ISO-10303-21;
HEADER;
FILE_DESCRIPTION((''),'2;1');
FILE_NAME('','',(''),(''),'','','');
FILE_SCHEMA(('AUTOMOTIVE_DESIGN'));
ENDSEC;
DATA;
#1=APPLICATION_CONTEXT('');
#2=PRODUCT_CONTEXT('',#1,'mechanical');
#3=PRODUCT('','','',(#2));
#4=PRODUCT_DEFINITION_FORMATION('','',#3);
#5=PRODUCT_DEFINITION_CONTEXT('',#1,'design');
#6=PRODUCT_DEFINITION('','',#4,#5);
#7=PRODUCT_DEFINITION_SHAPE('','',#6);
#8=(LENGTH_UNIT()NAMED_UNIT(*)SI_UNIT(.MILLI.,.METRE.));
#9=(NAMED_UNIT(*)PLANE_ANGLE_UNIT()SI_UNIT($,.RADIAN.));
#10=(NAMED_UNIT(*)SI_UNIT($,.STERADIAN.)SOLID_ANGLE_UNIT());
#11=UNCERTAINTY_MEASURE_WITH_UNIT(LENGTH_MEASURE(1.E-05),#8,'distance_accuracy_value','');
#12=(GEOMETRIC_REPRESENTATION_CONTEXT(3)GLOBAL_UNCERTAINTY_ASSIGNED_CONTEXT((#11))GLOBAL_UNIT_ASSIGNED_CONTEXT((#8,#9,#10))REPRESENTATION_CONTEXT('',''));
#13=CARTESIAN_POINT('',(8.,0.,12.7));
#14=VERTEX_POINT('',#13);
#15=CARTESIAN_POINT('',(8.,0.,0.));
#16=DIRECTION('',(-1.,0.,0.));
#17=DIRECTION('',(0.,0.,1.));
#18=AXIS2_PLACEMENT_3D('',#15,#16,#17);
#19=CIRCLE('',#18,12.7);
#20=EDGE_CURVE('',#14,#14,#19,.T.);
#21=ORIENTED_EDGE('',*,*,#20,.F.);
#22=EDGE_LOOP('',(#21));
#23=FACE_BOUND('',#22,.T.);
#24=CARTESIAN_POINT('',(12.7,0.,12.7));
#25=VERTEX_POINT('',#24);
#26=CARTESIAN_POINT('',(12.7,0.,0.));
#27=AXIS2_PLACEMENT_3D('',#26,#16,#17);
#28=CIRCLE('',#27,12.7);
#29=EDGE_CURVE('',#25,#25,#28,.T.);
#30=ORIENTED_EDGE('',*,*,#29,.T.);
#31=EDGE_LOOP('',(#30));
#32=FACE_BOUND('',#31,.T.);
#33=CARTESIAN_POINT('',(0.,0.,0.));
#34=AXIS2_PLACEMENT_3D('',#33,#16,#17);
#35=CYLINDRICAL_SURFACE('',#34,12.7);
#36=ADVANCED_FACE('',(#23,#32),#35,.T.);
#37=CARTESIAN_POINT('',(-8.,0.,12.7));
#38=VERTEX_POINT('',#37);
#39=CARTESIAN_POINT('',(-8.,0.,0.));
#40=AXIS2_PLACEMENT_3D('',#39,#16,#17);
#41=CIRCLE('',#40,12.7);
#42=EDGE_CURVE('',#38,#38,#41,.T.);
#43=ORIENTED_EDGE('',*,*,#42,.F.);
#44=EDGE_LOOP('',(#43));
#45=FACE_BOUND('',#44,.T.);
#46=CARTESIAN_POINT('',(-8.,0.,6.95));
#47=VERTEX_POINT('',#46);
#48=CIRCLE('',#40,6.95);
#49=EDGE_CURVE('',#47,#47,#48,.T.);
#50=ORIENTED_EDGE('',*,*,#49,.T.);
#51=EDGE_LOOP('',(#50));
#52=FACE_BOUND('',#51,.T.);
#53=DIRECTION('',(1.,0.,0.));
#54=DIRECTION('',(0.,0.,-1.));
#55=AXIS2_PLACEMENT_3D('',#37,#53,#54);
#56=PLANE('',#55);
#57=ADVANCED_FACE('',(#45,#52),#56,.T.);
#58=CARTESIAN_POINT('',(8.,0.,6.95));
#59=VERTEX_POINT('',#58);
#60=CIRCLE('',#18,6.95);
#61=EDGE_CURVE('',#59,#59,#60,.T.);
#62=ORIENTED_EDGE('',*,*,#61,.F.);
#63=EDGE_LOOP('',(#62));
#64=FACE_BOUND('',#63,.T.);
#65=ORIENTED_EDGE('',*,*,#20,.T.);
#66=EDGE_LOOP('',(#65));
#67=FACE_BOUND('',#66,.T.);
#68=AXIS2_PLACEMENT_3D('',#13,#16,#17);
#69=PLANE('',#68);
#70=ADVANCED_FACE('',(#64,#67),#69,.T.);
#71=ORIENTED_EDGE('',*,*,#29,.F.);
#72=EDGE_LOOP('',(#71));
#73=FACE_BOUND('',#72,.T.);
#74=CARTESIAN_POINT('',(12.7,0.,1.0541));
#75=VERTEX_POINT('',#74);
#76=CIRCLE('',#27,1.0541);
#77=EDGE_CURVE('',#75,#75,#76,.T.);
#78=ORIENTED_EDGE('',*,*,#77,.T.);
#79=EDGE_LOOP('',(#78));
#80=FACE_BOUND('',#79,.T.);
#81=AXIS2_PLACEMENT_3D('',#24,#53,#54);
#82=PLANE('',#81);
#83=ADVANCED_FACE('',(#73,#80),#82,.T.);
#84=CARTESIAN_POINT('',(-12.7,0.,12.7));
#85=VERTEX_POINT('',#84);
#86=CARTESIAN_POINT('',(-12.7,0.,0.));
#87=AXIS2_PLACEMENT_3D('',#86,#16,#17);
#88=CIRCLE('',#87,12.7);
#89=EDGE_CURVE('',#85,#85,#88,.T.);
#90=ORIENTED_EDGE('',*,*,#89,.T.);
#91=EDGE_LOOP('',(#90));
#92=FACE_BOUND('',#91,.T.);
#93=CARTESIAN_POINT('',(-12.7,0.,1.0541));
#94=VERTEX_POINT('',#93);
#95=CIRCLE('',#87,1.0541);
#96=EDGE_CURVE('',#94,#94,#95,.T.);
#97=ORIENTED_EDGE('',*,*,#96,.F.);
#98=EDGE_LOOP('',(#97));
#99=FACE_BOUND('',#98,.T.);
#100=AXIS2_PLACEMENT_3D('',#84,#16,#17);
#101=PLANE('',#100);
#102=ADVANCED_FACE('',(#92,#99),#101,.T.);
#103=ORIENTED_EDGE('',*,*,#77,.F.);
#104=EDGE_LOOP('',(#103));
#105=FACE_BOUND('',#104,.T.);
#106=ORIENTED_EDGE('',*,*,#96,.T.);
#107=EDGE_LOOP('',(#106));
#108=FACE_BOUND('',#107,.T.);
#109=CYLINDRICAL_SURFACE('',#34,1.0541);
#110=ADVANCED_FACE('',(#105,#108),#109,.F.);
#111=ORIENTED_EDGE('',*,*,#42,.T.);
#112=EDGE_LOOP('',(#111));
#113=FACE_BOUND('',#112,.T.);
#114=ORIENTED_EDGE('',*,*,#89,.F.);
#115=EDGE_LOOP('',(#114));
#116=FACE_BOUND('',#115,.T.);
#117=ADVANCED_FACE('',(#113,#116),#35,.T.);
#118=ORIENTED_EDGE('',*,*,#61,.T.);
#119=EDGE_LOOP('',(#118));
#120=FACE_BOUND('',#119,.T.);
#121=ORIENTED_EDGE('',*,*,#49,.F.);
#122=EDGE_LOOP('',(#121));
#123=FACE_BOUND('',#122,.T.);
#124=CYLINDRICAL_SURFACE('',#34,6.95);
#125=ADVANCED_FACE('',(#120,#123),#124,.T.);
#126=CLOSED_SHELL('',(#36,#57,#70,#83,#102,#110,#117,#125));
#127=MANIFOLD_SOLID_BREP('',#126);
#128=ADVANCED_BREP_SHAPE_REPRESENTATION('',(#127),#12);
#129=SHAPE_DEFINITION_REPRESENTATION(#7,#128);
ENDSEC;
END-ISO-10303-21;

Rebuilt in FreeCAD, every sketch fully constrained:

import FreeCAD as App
import Part
import Sketcher
Q = App.Units.Quantity

doc = App.newDocument("Part")
body = doc.addObject("PartDesign::Body", "Body")

# Sketch on XZ plane
sketch1 = body.newObject("Sketcher::SketchObject", "Sketch")
sketch1.AttachmentSupport = (doc.getObject("XZ_Plane"), [""])
sketch1.MapMode = "FlatFace"
sketch1.addGeometry([
    Part.LineSegment(App.Vector(8, 12.7, 0), App.Vector(12.7, 12.7, 0)),  # 0
    Part.LineSegment(App.Vector(12.7, 12.7, 0), App.Vector(12.7, 1.1, 0)),  # 1
    Part.LineSegment(App.Vector(12.7, 1.1, 0), App.Vector(-12.7, 1.1, 0)),  # 2
    Part.LineSegment(App.Vector(-12.7, 1.1, 0), App.Vector(-12.7, 12.7, 0)),  # 3
    Part.LineSegment(App.Vector(-12.7, 12.7, 0), App.Vector(-8, 12.7, 0)),  # 4
    Part.LineSegment(App.Vector(-8, 12.7, 0), App.Vector(-8, 7, 0)),  # 5
    Part.LineSegment(App.Vector(-8, 7, 0), App.Vector(8, 7, 0)),  # 6
    Part.LineSegment(App.Vector(8, 7, 0), App.Vector(8, 12.7, 0)),  # 7
], False)
sketch1.addConstraint([
    Sketcher.Constraint("Coincident", 0, 2, 1, 1),
    Sketcher.Constraint("Coincident", 1, 2, 2, 1),
    Sketcher.Constraint("Coincident", 2, 2, 3, 1),
    Sketcher.Constraint("Coincident", 3, 2, 4, 1),
    Sketcher.Constraint("Coincident", 4, 2, 5, 1),
    Sketcher.Constraint("Coincident", 5, 2, 6, 1),
    Sketcher.Constraint("Coincident", 6, 2, 7, 1),
    Sketcher.Constraint("Coincident", 7, 2, 0, 1),
    Sketcher.Constraint("Horizontal", 0),
    Sketcher.Constraint("Vertical", 1),
    Sketcher.Constraint("Horizontal", 2),
    Sketcher.Constraint("Vertical", 3),
    Sketcher.Constraint("Horizontal", 4),
    Sketcher.Constraint("Vertical", 5),
    Sketcher.Constraint("Horizontal", 6),
    Sketcher.Constraint("Vertical", 7),
    Sketcher.Constraint("Symmetric", 0, 2, 3, 2, -2),
    Sketcher.Constraint("Equal", 0, 4),
    Sketcher.Constraint("DistanceX", 6, 1, 6, 2, Q("16 mm")),
    Sketcher.Constraint("DistanceX", 0, 1, 0, 2, Q("4.7 mm")),
    Sketcher.Constraint("DistanceY", 5, 2, 5, 1, Q("5.75 mm")),
    Sketcher.Constraint("DistanceY", -1, 1, 0, 2, Q("12.7 mm")),
    Sketcher.Constraint("DistanceY", 1, 2, 1, 1, Q("11.6459 mm")),
])
revolution = body.newObject("PartDesign::Revolution", "Revolution")
revolution.Profile = sketch1
revolution.ReferenceAxis = (sketch1, ["H_Axis"])
revolution.Angle = 360

doc.recompute()
